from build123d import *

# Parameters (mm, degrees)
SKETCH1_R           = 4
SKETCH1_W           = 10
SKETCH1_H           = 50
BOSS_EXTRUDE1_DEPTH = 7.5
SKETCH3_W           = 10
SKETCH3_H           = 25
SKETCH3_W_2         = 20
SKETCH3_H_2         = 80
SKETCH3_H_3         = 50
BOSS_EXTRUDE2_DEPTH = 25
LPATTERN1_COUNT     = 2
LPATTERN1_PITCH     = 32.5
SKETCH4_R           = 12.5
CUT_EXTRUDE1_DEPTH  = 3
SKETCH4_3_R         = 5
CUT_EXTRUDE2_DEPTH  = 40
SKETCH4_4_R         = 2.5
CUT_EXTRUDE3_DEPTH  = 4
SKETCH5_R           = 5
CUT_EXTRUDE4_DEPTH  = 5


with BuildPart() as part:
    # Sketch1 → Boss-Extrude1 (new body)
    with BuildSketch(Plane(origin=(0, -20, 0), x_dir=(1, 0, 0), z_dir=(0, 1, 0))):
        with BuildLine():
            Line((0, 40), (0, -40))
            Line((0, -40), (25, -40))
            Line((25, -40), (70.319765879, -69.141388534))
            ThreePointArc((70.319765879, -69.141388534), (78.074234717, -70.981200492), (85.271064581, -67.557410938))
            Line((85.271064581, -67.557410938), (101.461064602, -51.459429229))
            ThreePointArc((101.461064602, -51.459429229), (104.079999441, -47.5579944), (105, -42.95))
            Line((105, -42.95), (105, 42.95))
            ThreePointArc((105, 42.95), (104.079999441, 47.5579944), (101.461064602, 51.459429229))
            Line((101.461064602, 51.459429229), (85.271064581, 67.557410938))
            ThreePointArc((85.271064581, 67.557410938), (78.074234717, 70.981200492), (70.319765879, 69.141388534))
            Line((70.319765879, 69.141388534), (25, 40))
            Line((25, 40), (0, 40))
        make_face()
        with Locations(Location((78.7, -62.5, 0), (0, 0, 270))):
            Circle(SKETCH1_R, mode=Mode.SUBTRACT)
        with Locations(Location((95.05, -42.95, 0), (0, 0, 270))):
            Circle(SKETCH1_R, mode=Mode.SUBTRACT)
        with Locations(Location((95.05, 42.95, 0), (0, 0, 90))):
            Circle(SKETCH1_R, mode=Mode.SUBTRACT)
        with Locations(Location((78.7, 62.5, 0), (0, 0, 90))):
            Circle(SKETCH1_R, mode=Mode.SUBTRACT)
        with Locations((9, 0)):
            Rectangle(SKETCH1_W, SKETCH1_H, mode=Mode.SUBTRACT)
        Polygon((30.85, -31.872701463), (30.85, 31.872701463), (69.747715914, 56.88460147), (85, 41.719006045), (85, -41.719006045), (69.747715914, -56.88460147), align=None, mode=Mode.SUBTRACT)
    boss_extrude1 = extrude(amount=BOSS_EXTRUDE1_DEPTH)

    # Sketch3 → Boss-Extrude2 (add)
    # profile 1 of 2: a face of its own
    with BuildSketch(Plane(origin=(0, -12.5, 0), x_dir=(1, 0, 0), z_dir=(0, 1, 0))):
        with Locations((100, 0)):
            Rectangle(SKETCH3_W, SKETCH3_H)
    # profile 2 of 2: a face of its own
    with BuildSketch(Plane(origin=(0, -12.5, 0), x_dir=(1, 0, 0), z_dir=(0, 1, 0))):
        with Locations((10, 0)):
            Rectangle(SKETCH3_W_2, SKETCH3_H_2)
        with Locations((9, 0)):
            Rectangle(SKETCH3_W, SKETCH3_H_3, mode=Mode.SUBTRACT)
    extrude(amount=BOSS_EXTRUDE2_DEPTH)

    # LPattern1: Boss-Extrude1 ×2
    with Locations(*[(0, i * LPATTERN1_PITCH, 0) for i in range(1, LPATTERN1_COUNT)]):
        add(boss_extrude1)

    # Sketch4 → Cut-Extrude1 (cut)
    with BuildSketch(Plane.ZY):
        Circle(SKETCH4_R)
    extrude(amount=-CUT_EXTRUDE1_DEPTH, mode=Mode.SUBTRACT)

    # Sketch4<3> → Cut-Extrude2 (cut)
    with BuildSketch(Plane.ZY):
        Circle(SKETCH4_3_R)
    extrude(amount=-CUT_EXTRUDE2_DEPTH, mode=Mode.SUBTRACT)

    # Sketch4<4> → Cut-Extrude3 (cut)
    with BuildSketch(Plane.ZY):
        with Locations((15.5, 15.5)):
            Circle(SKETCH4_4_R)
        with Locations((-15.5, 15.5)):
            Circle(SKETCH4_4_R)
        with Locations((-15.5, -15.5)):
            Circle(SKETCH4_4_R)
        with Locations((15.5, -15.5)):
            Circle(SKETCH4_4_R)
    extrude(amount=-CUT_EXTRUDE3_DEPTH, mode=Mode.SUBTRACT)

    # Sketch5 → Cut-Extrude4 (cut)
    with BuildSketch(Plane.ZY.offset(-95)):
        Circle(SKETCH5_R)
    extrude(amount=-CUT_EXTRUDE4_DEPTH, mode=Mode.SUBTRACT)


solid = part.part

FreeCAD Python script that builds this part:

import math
import FreeCAD as App
import Part
import Sketcher
from FreeCAD import Vector

doc = App.newDocument("Part")
body = doc.addObject("PartDesign::Body", "Body")

# Sketch on XZ plane
sketch1 = body.newObject("Sketcher::SketchObject", "Sketch")
sketch1.AttachmentSupport = (doc.getObject("XZ_Plane"), [""])
sketch1.MapMode = "FlatFace"
sketch1.AttachmentOffset = App.Placement(Vector(0, 0, 20), App.Rotation())
sketch1.addGeometry([
    Part.LineSegment(Vector(0, -40, 0), Vector(0, 40, 0)),  # 0
    Part.LineSegment(Vector(0, 40, 0), Vector(25, 40, 0)),  # 1
    Part.LineSegment(Vector(25, 40, 0), Vector(70.319766, 69.141389, 0)),  # 2
    Part.ArcOfCircle(Part.Circle(Vector(76.81, 59.047982, 0), Vector(0, 0, 1), 12), math.radians(45.163288), math.radians(122.741714)),  # 3
    Part.LineSegment(Vector(85.271065, 67.557411, 0), Vector(101.461065, 51.459429, 0)),  # 4
    Part.ArcOfCircle(Part.Circle(Vector(93, 42.95, 0), Vector(0, 0, 1), 12), math.radians(0), math.radians(45.163288)),  # 5
    Part.LineSegment(Vector(105, 42.95, 0), Vector(105, -42.95, 0)),  # 6
    Part.ArcOfCircle(Part.Circle(Vector(93, -42.95, 0), Vector(0, 0, 1), 12), math.radians(-45.163288), math.radians(0)),  # 7
    Part.LineSegment(Vector(101.461065, -51.459429, 0), Vector(85.271065, -67.557411, 0)),  # 8
    Part.ArcOfCircle(Part.Circle(Vector(76.81, -59.047982, 0), Vector(0, 0, 1), 12), math.radians(-122.741714), math.radians(-45.163288)),  # 9
    Part.LineSegment(Vector(70.319766, -69.141389, 0), Vector(25, -40, 0)),  # 10
    Part.LineSegment(Vector(25, -40, 0), Vector(0, -40, 0)),  # 11
    Part.Circle(Vector(78.7, 62.5, 0), Vector(0, 0, 1), 4),  # 12
    Part.Circle(Vector(95.05, 42.95, 0), Vector(0, 0, 1), 4),  # 13
    Part.LineSegment(Vector(14, 25, 0), Vector(4, 25, 0)),  # 14
    Part.LineSegment(Vector(4, 25, 0), Vector(4, -25, 0)),  # 15
    Part.LineSegment(Vector(4, -25, 0), Vector(14, -25, 0)),  # 16
    Part.LineSegment(Vector(14, -25, 0), Vector(14, 25, 0)),  # 17
    Part.LineSegment(Vector(69.747716, 56.884601, 0), Vector(30.85, 31.872701, 0)),  # 18
    Part.LineSegment(Vector(30.85, 31.872701, 0), Vector(30.85, -31.872701, 0)),  # 19
    Part.LineSegment(Vector(30.85, -31.872701, 0), Vector(69.747716, -56.884601, 0)),  # 20
    Part.LineSegment(Vector(69.747716, -56.884601, 0), Vector(85, -41.719006, 0)),  # 21
    Part.LineSegment(Vector(85, -41.719006, 0), Vector(85, 41.719006, 0)),  # 22
    Part.LineSegment(Vector(85, 41.719006, 0), Vector(69.747716, 56.884601, 0)),  # 23
    Part.Circle(Vector(95.05, -42.95, 0), Vector(0, 0, 1), 4),  # 24
    Part.Circle(Vector(78.7, -62.5, 0), Vector(0, 0, 1), 4),  # 25
], False)
sketch1.addConstraint([
    Sketcher.Constraint("Coincident", 0, 2, 1, 1),
    Sketcher.Constraint("Coincident", 1, 2, 2, 1),
    Sketcher.Constraint("Tangent", 2, 2, 3, 2),
    Sketcher.Constraint("Tangent", 3, 1, 4, 1),
    Sketcher.Constraint("Tangent", 4, 2, 5, 2),
    Sketcher.Constraint("Tangent", 5, 1, 6, 1),
    Sketcher.Constraint("Tangent", 6, 2, 7, 2),
    Sketcher.Constraint("Tangent", 7, 1, 8, 1),
    Sketcher.Constraint("Tangent", 8, 2, 9, 2),
    Sketcher.Constraint("Tangent", 9, 1, 10, 1),
    Sketcher.Constraint("Coincident", 10, 2, 11, 1),
    Sketcher.Constraint("Coincident", 11, 2, 0, 1),
    Sketcher.Constraint("Coincident", 14, 2, 15, 1),
    Sketcher.Constraint("Coincident", 15, 2, 16, 1),
    Sketcher.Constraint("Coincident", 16, 2, 17, 1),
    Sketcher.Constraint("Coincident", 17, 2, 14, 1),
    Sketcher.Constraint("Coincident", 18, 2, 19, 1),
    Sketcher.Constraint("Coincident", 19, 2, 20, 1),
    Sketcher.Constraint("Coincident", 20, 2, 21, 1),
    Sketcher.Constraint("Coincident", 21, 2, 22, 1),
    Sketcher.Constraint("Coincident", 22, 2, 23, 1),
    Sketcher.Constraint("Coincident", 23, 2, 18, 1),
    Sketcher.Constraint("Vertical", 0),
    Sketcher.Constraint("Horizontal", 1),
    Sketcher.Constraint("Vertical", 6),
    Sketcher.Constraint("Horizontal", 11),
    Sketcher.Constraint("Horizontal", 14),
    Sketcher.Constraint("Vertical", 15),
    Sketcher.Constraint("Horizontal", 16),
    Sketcher.Constraint("Vertical", 17),
    Sketcher.Constraint("Vertical", 19),
    Sketcher.Constraint("Vertical", 22),
    Sketcher.Constraint("Equal", 3, 5),
    Sketcher.Constraint("Equal", 5, 7),
    Sketcher.Constraint("Equal", 7, 9),
    Sketcher.Constraint("Equal", 12, 13),
    Sketcher.Constraint("Equal", 13, 24),
    Sketcher.Constraint("Equal", 24, 25),
    Sketcher.Constraint("Symmetric", 0, 2, 11, 2, -1, 1),
    Sketcher.Constraint("Symmetric", 3, 3, 9, 3, -1),
    Sketcher.Constraint("Symmetric", 13, 3, 24, 3, -1),
    Sketcher.Constraint("Symmetric", 12, 3, 25, 3, -1),
    Sketcher.Constraint("Symmetric", 20, 2, 23, 2, -1),
    Sketcher.Constraint("Parallel", 2, 18),
    Sketcher.Constraint("Parallel", 10, 20),
    Sketcher.Constraint("Parallel", 8, 21),
    Sketcher.Constraint("Parallel", 4, 23),
    Sketcher.Constraint("Horizontal", 5, 3, 13, 3),
    Sketcher.Constraint("Horizontal", 7, 3, 24, 3),
    Sketcher.Constraint("Vertical", 2, 2, 9, 1),
    Sketcher.Constraint("Diameter", 12, 8.0),
    Sketcher.Constraint("Radius", 3, 12.0),
    Sketcher.Constraint("DistanceX", 1, 1, 1, 2, 25.0),
    Sketcher.Constraint("DistanceX", 14, 2, 14, 1, 10.0),
    Sketcher.Constraint("DistanceY", 0, 1, 0, 2, 80.0),
    Sketcher.Constraint("DistanceY", 15, 2, 15, 1, 50.0),
    Sketcher.Constraint("DistanceY", 6, 2, 6, 1, 85.9),
    Sketcher.Constraint("DistanceX", -1, 1, 5, 3, 93.0),
    Sketcher.Constraint("DistanceX", -1, 1, 14, 2, 4.0),
    Sketcher.Constraint("DistanceY", -1, 1, 14, 2, 25.0),
    Sketcher.Constraint("DistanceX", -1, 1, 21, 2, 85.0),
    Sketcher.Constraint("DistanceX", -1, 1, 12, 3, 78.7),
    Sketcher.Constraint("DistanceY", -1, 1, 12, 3, 62.5),
    Sketcher.Constraint("DistanceX", -1, 1, 3, 3, 76.81),
    Sketcher.Constraint("DistanceX", -1, 1, 13, 3, 95.05),
    Sketcher.Constraint("DistanceX", -1, 1, 18, 2, 30.85),
    Sketcher.Constraint("DistanceY", -1, 1, 18, 2, 31.872701),
    Sketcher.Constraint("DistanceY", 20, 2, -1, 1, 56.884601),
    Sketcher.Constraint("DistanceX", 2, 2, 3, 1, 14.951299),
])
pad1 = body.newObject("PartDesign::Pad", "Pad")
pad1.Profile = sketch1
pad1.Length = 7.5
pad1.Reversed = True

# Sketch on XZ plane
sketch2 = body.newObject("Sketcher::SketchObject", "Sketch001")
sketch2.AttachmentSupport = (doc.getObject("XZ_Plane"), [""])
sketch2.MapMode = "FlatFace"
sketch2.AttachmentOffset = App.Placement(Vector(0, 0, 12.5), App.Rotation())
sketch2.addGeometry([
    Part.LineSegment(Vector(95, -12.5, 0), Vector(95, 12.5, 0)),  # 0
    Part.LineSegment(Vector(95, 12.5, 0), Vector(105, 12.5, 0)),  # 1
    Part.LineSegment(Vector(105, 12.5, 0), Vector(105, -12.5, 0)),  # 2
    Part.LineSegment(Vector(105, -12.5, 0), Vector(95, -12.5, 0)),  # 3
    Part.LineSegment(Vector(0, -40, 0), Vector(0, 40, 0)),  # 4
    Part.LineSegment(Vector(0, 40, 0), Vector(20, 40, 0)),  # 5
    Part.LineSegment(Vector(20, 40, 0), Vector(20, -40, 0)),  # 6
    Part.LineSegment(Vector(20, -40, 0), Vector(0, -40, 0)),  # 7
    Part.LineSegment(Vector(14, 25, 0), Vector(4, 25, 0)),  # 8
    Part.LineSegment(Vector(4, 25, 0), Vector(4, -25, 0)),  # 9
    Part.LineSegment(Vector(4, -25, 0), Vector(14, -25, 0)),  # 10
    Part.LineSegment(Vector(14, -25, 0), Vector(14, 25, 0)),  # 11
], False)
sketch2.addConstraint([
    Sketcher.Constraint("Coincident", 0, 2, 1, 1),
    Sketcher.Constraint("Coincident", 1, 2, 2, 1),
    Sketcher.Constraint("Coincident", 2, 2, 3, 1),
    Sketcher.Constraint("Coincident", 3, 2, 0, 1),
    Sketcher.Constraint("Coincident", 4, 2, 5, 1),
    Sketcher.Constraint("Coincident", 5, 2, 6, 1),
    Sketcher.Constraint("Coincident", 6, 2, 7, 1),
    Sketcher.Constraint("Coincident", 7, 2, 4, 1),
    Sketcher.Constraint("Coincident", 8, 2, 9, 1),
    Sketcher.Constraint("Coincident", 9, 2, 10, 1),
    Sketcher.Constraint("Coincident", 10, 2, 11, 1),
    Sketcher.Constraint("Coincident", 11, 2, 8, 1),
    Sketcher.Constraint("Vertical", 0),
    Sketcher.Constraint("Horizontal", 1),
    Sketcher.Constraint("Vertical", 2),
    Sketcher.Constraint("Horizontal", 3),
    Sketcher.Constraint("Vertical", 4),
    Sketcher.Constraint("Horizontal", 5),
    Sketcher.Constraint("Vertical", 6),
    Sketcher.Constraint("Horizontal", 7),
    Sketcher.Constraint("Horizontal", 8),
    Sketcher.Constraint("Vertical", 9),
    Sketcher.Constraint("Horizontal", 10),
    Sketcher.Constraint("Vertical", 11),
    Sketcher.Constraint("Symmetric", 4, 2, 7, 2, -1, 1),
    Sketcher.Constraint("Equal", 3, 8),
    Sketcher.Constraint("DistanceX", 1, 1, 1, 2, 10.0),
    Sketcher.Constraint("DistanceX", 5, 1, 5, 2, 20.0),
    Sketcher.Constraint("DistanceY", 0, 1, 0, 2, 25.0),
    Sketcher.Constraint("DistanceY", 4, 1, 4, 2, 80.0),
    Sketcher.Constraint("DistanceY", 9, 2, 9, 1, 50.0),
    Sketcher.Constraint("DistanceX", -1, 1, 0, 2, 95.0),
    Sketcher.Constraint("DistanceX", -1, 1, 8, 2, 4.0),
    Sketcher.Constraint("DistanceY", -1, 1, 8, 2, 25.0),
    Sketcher.Constraint("DistanceY", -1, 1, 0, 2, 12.5),
])
pad2 = body.newObject("PartDesign::Pad", "Pad001")
pad2.Profile = sketch2
pad2.Length = 25
pad2.Reversed = True
doc.recompute()

linearpattern = body.newObject("PartDesign::LinearPattern", "LinearPattern")
linearpattern.Originals = [pad1]
linearpattern.Direction = (doc.getObject("Y_Axis"), [""])
linearpattern.Mode = "offset"
linearpattern.Offset = 32.5
linearpattern.Occurrences = 2
body.Tip = linearpattern

# Sketch on YZ plane
sketch3 = body.newObject("Sketcher::SketchObject", "Sketch002")
sketch3.AttachmentSupport = (doc.getObject("YZ_Plane"), [""])
sketch3.MapMode = "FlatFace"
sketch3.addGeometry(Part.Circle(Vector(0, 0, 0), Vector(0, 0, 1), 12.5), False)
sketch3.addConstraint([
    Sketcher.Constraint("Coincident", 0, 3, -1, 1),
    Sketcher.Constraint("Diameter", 0, 25.0),
])
pocket1 = body.newObject("PartDesign::Pocket", "Pocket")
pocket1.Profile = sketch3
pocket1.Length = 3
pocket1.Reversed = True

# Sketch on YZ plane
sketch4 = body.newObject("Sketcher::SketchObject", "Sketch003")
sketch4.AttachmentSupport = (doc.getObject("YZ_Plane"), [""])
sketch4.MapMode = "FlatFace"
sketch4.addGeometry(Part.Circle(Vector(0, 0, 0), Vector(0, 0, 1), 5), False)
sketch4.addConstraint([
    Sketcher.Constraint("Coincident", 0, 3, -1, 1),
    Sketcher.Constraint("Diameter", 0, 10.0),
])
pocket2 = body.newObject("PartDesign::Pocket", "Pocket001")
pocket2.Profile = sketch4
pocket2.Length = 40
pocket2.Reversed = True

# Sketch on YZ plane
sketch5 = body.newObject("Sketcher::SketchObject", "Sketch004")
sketch5.AttachmentSupport = (doc.getObject("YZ_Plane"), [""])
sketch5.MapMode = "FlatFace"
sketch5.addGeometry([
    Part.Circle(Vector(15.5, 15.5, 0), Vector(0, 0, 1), 2.5),
    Part.Circle(Vector(15.5, -15.5, 0), Vector(0, 0, 1), 2.5),
    Part.Circle(Vector(-15.5, -15.5, 0), Vector(0, 0, 1), 2.5),
    Part.Circle(Vector(-15.5, 15.5, 0), Vector(0, 0, 1), 2.5),
], False)
sketch5.addConstraint([
    Sketcher.Constraint("Equal", 0, 1),
    Sketcher.Constraint("Equal", 1, 2),
    Sketcher.Constraint("Equal", 2, 3),
    Sketcher.Constraint("Symmetric", 0, 3, 2, 3, -1, 1),
    Sketcher.Constraint("Symmetric", 1, 3, 3, 3, -1, 1),
    Sketcher.Constraint("Symmetric", 1, 3, 2, 3, -2),
    Sketcher.Constraint("Diameter", 0, 5.0),
    Sketcher.Constraint("DistanceY", 1, 3, 0, 3, 31.0),
    Sketcher.Constraint("DistanceX", 2, 3, 1, 3, 31.0),
])
pocket3 = body.newObject("PartDesign::Pocket", "Pocket002")
pocket3.Profile = sketch5
pocket3.Length = 4
pocket3.Reversed = True

# Sketch on YZ plane
sketch6 = body.newObject("Sketcher::SketchObject", "Sketch005")
sketch6.AttachmentSupport = (doc.getObject("YZ_Plane"), [""])
sketch6.MapMode = "FlatFace"
sketch6.AttachmentOffset = App.Placement(Vector(0, 0, 95), App.Rotation())
sketch6.addGeometry(Part.Circle(Vector(0, 0, 0), Vector(0, 0, 1), 5), False)
sketch6.addConstraint([
    Sketcher.Constraint("Coincident", 0, 3, -1, 1),
    Sketcher.Constraint("Diameter", 0, 10.0),
])
pocket4 = body.newObject("PartDesign::Pocket", "Pocket003")
pocket4.Profile = sketch6
pocket4.Length = 5
pocket4.Reversed = True

doc.recompute()
